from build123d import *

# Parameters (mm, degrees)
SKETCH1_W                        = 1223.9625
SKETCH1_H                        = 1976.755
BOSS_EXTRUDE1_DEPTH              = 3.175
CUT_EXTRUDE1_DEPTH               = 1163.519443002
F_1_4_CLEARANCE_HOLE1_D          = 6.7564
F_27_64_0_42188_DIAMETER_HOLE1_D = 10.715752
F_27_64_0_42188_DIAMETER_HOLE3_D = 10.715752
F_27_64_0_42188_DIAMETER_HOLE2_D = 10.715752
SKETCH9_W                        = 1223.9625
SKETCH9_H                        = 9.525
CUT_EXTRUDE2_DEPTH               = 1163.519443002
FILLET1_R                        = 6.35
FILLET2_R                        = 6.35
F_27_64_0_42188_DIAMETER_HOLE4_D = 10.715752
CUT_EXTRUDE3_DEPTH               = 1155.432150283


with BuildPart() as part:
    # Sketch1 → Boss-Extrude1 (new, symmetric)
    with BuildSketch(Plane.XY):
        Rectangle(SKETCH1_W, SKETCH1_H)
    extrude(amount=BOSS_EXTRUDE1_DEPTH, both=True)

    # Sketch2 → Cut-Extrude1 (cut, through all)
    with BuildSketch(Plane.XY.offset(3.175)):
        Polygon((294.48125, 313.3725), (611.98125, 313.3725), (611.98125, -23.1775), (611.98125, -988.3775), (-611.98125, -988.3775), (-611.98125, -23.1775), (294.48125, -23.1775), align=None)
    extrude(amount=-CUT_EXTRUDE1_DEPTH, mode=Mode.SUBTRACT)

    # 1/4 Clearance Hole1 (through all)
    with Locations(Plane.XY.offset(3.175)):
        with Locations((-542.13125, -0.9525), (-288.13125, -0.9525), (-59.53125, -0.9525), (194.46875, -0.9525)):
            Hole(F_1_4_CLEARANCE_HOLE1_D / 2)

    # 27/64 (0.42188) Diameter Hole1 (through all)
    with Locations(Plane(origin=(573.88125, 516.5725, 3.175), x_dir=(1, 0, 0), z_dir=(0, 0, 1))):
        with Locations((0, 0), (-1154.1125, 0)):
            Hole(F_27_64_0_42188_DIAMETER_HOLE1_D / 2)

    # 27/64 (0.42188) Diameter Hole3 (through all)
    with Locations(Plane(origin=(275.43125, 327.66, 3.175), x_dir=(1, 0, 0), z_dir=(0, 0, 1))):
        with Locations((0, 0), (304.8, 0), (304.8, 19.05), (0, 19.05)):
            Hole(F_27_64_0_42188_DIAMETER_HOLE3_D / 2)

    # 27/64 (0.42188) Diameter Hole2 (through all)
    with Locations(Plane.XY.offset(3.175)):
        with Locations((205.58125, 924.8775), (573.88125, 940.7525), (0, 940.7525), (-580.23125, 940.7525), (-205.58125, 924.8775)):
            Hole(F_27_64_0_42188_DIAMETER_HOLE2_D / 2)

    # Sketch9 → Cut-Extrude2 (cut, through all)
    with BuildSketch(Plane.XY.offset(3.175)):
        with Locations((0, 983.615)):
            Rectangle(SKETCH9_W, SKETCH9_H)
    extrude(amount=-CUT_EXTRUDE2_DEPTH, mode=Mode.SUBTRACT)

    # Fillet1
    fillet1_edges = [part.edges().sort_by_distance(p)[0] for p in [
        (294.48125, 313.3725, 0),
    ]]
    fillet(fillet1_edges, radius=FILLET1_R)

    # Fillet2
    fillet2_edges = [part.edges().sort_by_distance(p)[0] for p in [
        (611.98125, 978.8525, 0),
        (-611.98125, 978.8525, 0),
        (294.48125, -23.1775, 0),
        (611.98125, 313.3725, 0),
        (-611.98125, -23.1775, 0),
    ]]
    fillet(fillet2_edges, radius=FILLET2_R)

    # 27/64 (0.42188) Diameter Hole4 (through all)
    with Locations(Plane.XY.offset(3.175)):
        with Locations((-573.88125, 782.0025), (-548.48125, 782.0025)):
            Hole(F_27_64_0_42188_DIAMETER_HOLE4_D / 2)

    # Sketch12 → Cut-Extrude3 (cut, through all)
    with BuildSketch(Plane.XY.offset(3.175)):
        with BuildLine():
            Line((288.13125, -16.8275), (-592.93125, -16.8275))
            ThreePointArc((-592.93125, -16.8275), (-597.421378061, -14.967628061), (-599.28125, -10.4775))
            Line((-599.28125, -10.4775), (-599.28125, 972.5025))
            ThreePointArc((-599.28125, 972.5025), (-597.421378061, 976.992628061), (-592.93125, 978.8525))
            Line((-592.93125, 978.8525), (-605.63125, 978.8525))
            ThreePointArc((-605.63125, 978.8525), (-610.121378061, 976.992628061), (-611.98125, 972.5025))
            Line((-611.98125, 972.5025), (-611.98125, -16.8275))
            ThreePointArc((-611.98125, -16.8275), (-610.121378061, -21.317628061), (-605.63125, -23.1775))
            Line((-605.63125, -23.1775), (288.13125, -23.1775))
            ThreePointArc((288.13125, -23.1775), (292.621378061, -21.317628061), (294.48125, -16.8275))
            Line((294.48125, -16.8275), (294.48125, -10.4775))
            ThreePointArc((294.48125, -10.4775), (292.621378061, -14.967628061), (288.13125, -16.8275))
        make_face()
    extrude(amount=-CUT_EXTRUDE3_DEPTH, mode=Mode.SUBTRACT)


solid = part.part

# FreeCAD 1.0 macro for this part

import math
import FreeCAD as App
import Part
import Sketcher
from FreeCAD import Vector
Q = App.Units.Quantity


def edges_at(feature, points):
    """Names of the edges that pass closest to the given points."""
    edges = feature.Shape.Edges
    near = lambda p: min(range(len(edges)), key=lambda i: edges[i].distToShape(Part.Vertex(*p))[0])
    return sorted({f"Edge{near(p) + 1}" for p in points})

doc = App.newDocument("Part")
params = doc.addObject("Spreadsheet::Sheet", "Params")
for row, (alias, value) in enumerate([
    ("sketch1_width", "48.1875 in"),
    ("sketch1_height", "77.825 in"),
    ("pad1_length", "0.25 in"),
    ("sketch2_height", "38 in"),
    ("sketch2_width", "12.5 in"),
    ("sketch2_height2", "13.25 in"),
    ("sketch2_width2", "35.6875 in"),
    ("sketch3_diameter", "0.266 in"),
    ("hole_diameter", "0.266 in"),
    ("hole2_diameter", "10.715752 mm"),
    ("hole3_diameter", "10.715752 mm"),
    ("hole4_diameter", "10.715752 mm"),
    ("sketch7_width", "48.1875 in"),
    ("sketch7_height", "0.375 in"),
    ("fillet_radius", "0.25 in"),
    ("fillet2_radius", "0.25 in"),
    ("hole5_diameter", "10.715752 mm"),
    ("sketch9_radius", "0.25 in"),
    ("sketch9_width", "0.5 in"),
    ("sketch9_height", "38.7 in"),
    ("sketch9_width2", "34.6875 in"),
], start=1):
    params.set(f"A{row}", alias)
    params.set(f"B{row}", "=" + value)
    params.setAlias(f"B{row}", alias)

body = doc.addObject("PartDesign::Body", "Body")

# Sketch on XY plane
sketch1 = body.newObject("Sketcher::SketchObject", "Sketch")
sketch1.AttachmentSupport = (doc.getObject("XY_Plane"), [""])
sketch1.MapMode = "FlatFace"
sketch1.addGeometry([
    Part.LineSegment(Vector(-611.98125, 988.3775, 0), Vector(-611.98125, -988.3775, 0)),
    Part.LineSegment(Vector(-611.98125, -988.3775, 0), Vector(611.98125, -988.3775, 0)),
    Part.LineSegment(Vector(611.98125, -988.3775, 0), Vector(611.98125, 988.3775, 0)),
    Part.LineSegment(Vector(611.98125, 988.3775, 0), Vector(-611.98125, 988.3775, 0)),
], False)
sketch1.addConstraint([
    Sketcher.Constraint("Coincident", 0, 2, 1, 1),
    Sketcher.Constraint("Coincident", 1, 2, 2, 1),
    Sketcher.Constraint("Coincident", 2, 2, 3, 1),
    Sketcher.Constraint("Coincident", 3, 2, 0, 1),
    Sketcher.Constraint("Vertical", 0),
    Sketcher.Constraint("Horizontal", 1),
    Sketcher.Constraint("Vertical", 2),
    Sketcher.Constraint("Horizontal", 3),
    Sketcher.Constraint("Symmetric", 0, 2, 2, 2, -1, 1),
    Sketcher.Constraint("DistanceX", 1, 1, 1, 2, Q("48.1875 in")),
    Sketcher.Constraint("DistanceY", 0, 2, 0, 1, Q("77.825 in")),
])
sketch1.setExpression("Constraints[9]", "Params.sketch1_width")
sketch1.setExpression("Constraints[10]", "Params.sketch1_height")
pad1 = body.newObject("PartDesign::Pad", "Pad")
pad1.Profile = sketch1
pad1.setExpression("Length", "Params.pad1_length")
pad1.Midplane = True

# Sketch on XY plane
sketch2 = body.newObject("Sketcher::SketchObject", "Sketch001")
sketch2.AttachmentSupport = (doc.getObject("XY_Plane"), [""])
sketch2.MapMode = "FlatFace"
sketch2.AttachmentOffset = App.Placement(Vector(0, 0, 0.125 * 25.4), App.Rotation())
sketch2.addGeometry([
    Part.LineSegment(Vector(611.98125, 313.3725, 0), Vector(294.48125, 313.3725, 0)),  # 0
    Part.LineSegment(Vector(294.48125, 313.3725, 0), Vector(294.48125, -23.1775, 0)),  # 1
    Part.LineSegment(Vector(294.48125, -23.1775, 0), Vector(-611.98125, -23.1775, 0)),  # 2
    Part.LineSegment(Vector(-611.98125, -23.1775, 0), Vector(-611.98125, -988.3775, 0)),  # 3
    Part.LineSegment(Vector(-611.98125, -988.3775, 0), Vector(611.98125, -988.3775, 0)),  # 4
    Part.LineSegment(Vector(611.98125, -988.3775, 0), Vector(611.98125, 313.3725, 0)),  # 5
], False)
sketch2.addConstraint([
    Sketcher.Constraint("Coincident", 0, 2, 1, 1),
    Sketcher.Constraint("Coincident", 1, 2, 2, 1),
    Sketcher.Constraint("Coincident", 2, 2, 3, 1),
    Sketcher.Constraint("Coincident", 3, 2, 4, 1),
    Sketcher.Constraint("Coincident", 4, 2, 5, 1),
    Sketcher.Constraint("Coincident", 5, 2, 0, 1),
    Sketcher.Constraint("Horizontal", 0),
    Sketcher.Constraint("Vertical", 1),
    Sketcher.Constraint("Horizontal", 2),
    Sketcher.Constraint("Vertical", 3),
    Sketcher.Constraint("Horizontal", 4),
    Sketcher.Constraint("Vertical", 5),
    Sketcher.Constraint("DistanceY", 3, 2, 3, 1, Q("38 in")),
    Sketcher.Constraint("DistanceX", 0, 2, 0, 1, Q("12.5 in")),
    Sketcher.Constraint("DistanceY", 1, 2, 1, 1, Q("13.25 in")),
    Sketcher.Constraint("DistanceX", 2, 2, 2, 1, Q("35.6875 in")),
    Sketcher.Constraint("DistanceX", -1, 1, 0, 2, Q("11.59375 in")),
    Sketcher.Constraint("DistanceY", -1, 1, 0, 2, Q("12.3375 in")),
])
sketch2.setExpression("Constraints[12]", "Params.sketch2_height")
sketch2.setExpression("Constraints[13]", "Params.sketch2_width")
sketch2.setExpression("Constraints[14]", "Params.sketch2_height2")
sketch2.setExpression("Constraints[15]", "Params.sketch2_width2")
pocket1 = body.newObject("PartDesign::Pocket", "Pocket")
pocket1.Profile = sketch2
pocket1.Type = "ThroughAll"

# Sketch on XY plane
sketch3 = body.newObject("Sketcher::SketchObject", "Sketch002")
sketch3.AttachmentSupport = (doc.getObject("XY_Plane"), [""])
sketch3.MapMode = "FlatFace"
sketch3.AttachmentOffset = App.Placement(Vector(0, 0, 0.125 * 25.4), App.Rotation())
sketch3.addGeometry([
    Part.Circle(Vector(-542.13125, -0.9525, 0), Vector(0, 0, 1), 3.3782),
    Part.Circle(Vector(-288.13125, -0.9525, 0), Vector(0, 0, 1), 3.3782),
    Part.Circle(Vector(-59.53125, -0.9525, 0), Vector(0, 0, 1), 3.3782),
    Part.Circle(Vector(194.46875, -0.9525, 0), Vector(0, 0, 1), 3.3782),
], False)
sketch3.addConstraint([
    Sketcher.Constraint("Equal", 0, 1),
    Sketcher.Constraint("Equal", 1, 2),
    Sketcher.Constraint("Equal", 2, 3),
    Sketcher.Constraint("Horizontal", 0, 3, 1, 3),
    Sketcher.Constraint("Horizontal", 1, 3, 2, 3),
    Sketcher.Constraint("Horizontal", 2, 3, 3, 3),
    Sketcher.Constraint("Diameter", 0, Q("0.266 in")),
    Sketcher.Constraint("DistanceX", 0, 3, 1, 3, Q("10 in")),
    Sketcher.Constraint("DistanceX", 1, 3, 2, 3, Q("9 in")),
    Sketcher.Constraint("DistanceX", 2, 3, 3, 3, Q("10 in")),
    Sketcher.Constraint("DistanceX", 0, 3, -1, 1, Q("21.34375 in")),
    Sketcher.Constraint("DistanceY", 0, 3, -1, 1, Q("0.0375 in")),
])
sketch3.setExpression("Constraints[6]", "Params.sketch3_diameter")
doc.recompute()
hole = body.newObject("PartDesign::Hole", "Hole")
hole.Profile = sketch3
hole.ThreadType = "None"
hole.setExpression("Diameter", "Params.hole_diameter")
hole.DepthType = "ThroughAll"

# Sketch on XY plane
sketch4 = body.newObject("Sketcher::SketchObject", "Sketch003")
sketch4.AttachmentSupport = (doc.getObject("XY_Plane"), [""])
sketch4.MapMode = "FlatFace"
sketch4.AttachmentOffset = App.Placement(Vector(0, 0, 0.125 * 25.4), App.Rotation())
sketch4.addGeometry([
    Part.Circle(Vector(573.88125, 516.5725, 0), Vector(0, 0, 1), 5.357876),
    Part.Circle(Vector(-580.23125, 516.5725, 0), Vector(0, 0, 1), 5.357876),
], False)
sketch4.addConstraint([
    Sketcher.Constraint("Equal", 0, 1),
    Sketcher.Constraint("Horizontal", 0, 3, 1, 3),
    Sketcher.Constraint("DistanceX", -1, 1, 0, 3, Q("22.59375 in")),
    Sketcher.Constraint("DistanceX", 1, 3, -1, 1, Q("22.84375 in")),
    Sketcher.Constraint("Diameter", 0, 10.715752),
    Sketcher.Constraint("DistanceY", -1, 1, 0, 3, Q("20.3375 in")),
])
doc.recompute()
hole2 = body.newObject("PartDesign::Hole", "Hole001")
hole2.Profile = sketch4
hole2.ThreadType = "None"
hole2.setExpression("Diameter", "Params.hole2_diameter")
hole2.DepthType = "ThroughAll"

# Sketch on XY plane
sketch5 = body.newObject("Sketcher::SketchObject", "Sketch004")
sketch5.AttachmentSupport = (doc.getObject("XY_Plane"), [""])
sketch5.MapMode = "FlatFace"
sketch5.AttachmentOffset = App.Placement(Vector(0, 0, 0.125 * 25.4), App.Rotation())
sketch5.addGeometry([
    Part.Circle(Vector(275.43125, 327.66, 0), Vector(0, 0, 1), 5.357876),
    Part.Circle(Vector(580.23125, 327.66, 0), Vector(0, 0, 1), 5.357876),
    Part.Circle(Vector(580.23125, 346.71, 0), Vector(0, 0, 1), 5.357876),
    Part.Circle(Vector(275.43125, 346.71, 0), Vector(0, 0, 1), 5.357876),
], False)
sketch5.addConstraint([
    Sketcher.Constraint("Equal", 0, 1),
    Sketcher.Constraint("Equal", 1, 2),
    Sketcher.Constraint("Equal", 2, 3),
    Sketcher.Constraint("Horizontal", 0, 3, 1, 3),
    Sketcher.Constraint("Horizontal", 2, 3, 3, 3),
    Sketcher.Constraint("Vertical", 1, 3, 2, 3),
    Sketcher.Constraint("Vertical", 0, 3, 3, 3),
    Sketcher.Constraint("DistanceX", 0, 3, 1, 3, Q("12 in")),
    Sketcher.Constraint("DistanceY", -1, 1, 0, 3, Q("12.9 in")),
    Sketcher.Constraint("DistanceY", -1, 1, 2, 3, Q("13.65 in")),
    Sketcher.Constraint("DistanceX", -1, 1, 0, 3, Q("10.84375 in")),
    Sketcher.Constraint("Diameter", 0, 10.715752),
])
doc.recompute()
hole3 = body.newObject("PartDesign::Hole", "Hole002")
hole3.Profile = sketch5
hole3.ThreadType = "None"
hole3.setExpression("Diameter", "Params.hole3_diameter")
hole3.DepthType = "ThroughAll"

# Sketch on XY plane
sketch6 = body.newObject("Sketcher::SketchObject", "Sketch005")
sketch6.AttachmentSupport = (doc.getObject("XY_Plane"), [""])
sketch6.MapMode = "FlatFace"
sketch6.AttachmentOffset = App.Placement(Vector(0, 0, 0.125 * 25.4), App.Rotation())
sketch6.addGeometry([
    Part.Circle(Vector(205.58125, 924.8775, 0), Vector(0, 0, 1), 5.357876),  # 0
    Part.Circle(Vector(573.88125, 940.7525, 0), Vector(0, 0, 1), 5.357876),  # 1
    Part.Circle(Vector(0, 940.7525, 0), Vector(0, 0, 1), 5.357876),  # 2
    Part.Circle(Vector(-580.23125, 940.7525, 0), Vector(0, 0, 1), 5.357876),  # 3
    Part.Circle(Vector(-205.58125, 924.8775, 0), Vector(0, 0, 1), 5.357876),  # 4
], False)
sketch6.addConstraint([
    Sketcher.Constraint("Equal", 0, 1),
    Sketcher.Constraint("Equal", 1, 2),
    Sketcher.Constraint("Equal", 2, 3),
    Sketcher.Constraint("Equal", 3, 4),
    Sketcher.Constraint("Symmetric", 0, 3, 4, 3, -2),
    Sketcher.Constraint("PointOnObject", 2, 3, -2),
    Sketcher.Constraint("Horizontal", 1, 3, 2, 3),
    Sketcher.Constraint("Horizontal", 2, 3, 3, 3),
    Sketcher.Constraint("DistanceX", 0, 3, 1, 3, Q("14.5 in")),
    Sketcher.Constraint("DistanceX", 3, 3, 4, 3, Q("14.75 in")),
    Sketcher.Constraint("DistanceX", -1, 1, 0, 3, Q("8.09375 in")),
    Sketcher.Constraint("DistanceY", 0, 3, 1, 3, Q("0.625 in")),
    Sketcher.Constraint("Diameter", 0, 10.715752),
    Sketcher.Constraint("DistanceY", -1, 1, 0, 3, Q("36.4125 in")),
])
doc.recompute()
hole4 = body.newObject("PartDesign::Hole", "Hole003")
hole4.Profile = sketch6
hole4.ThreadType = "None"
hole4.setExpression("Diameter", "Params.hole4_diameter")
hole4.DepthType = "ThroughAll"

# Sketch on XY plane
sketch7 = body.newObject("Sketcher::SketchObject", "Sketch006")
sketch7.AttachmentSupport = (doc.getObject("XY_Plane"), [""])
sketch7.MapMode = "FlatFace"
sketch7.AttachmentOffset = App.Placement(Vector(0, 0, 0.125 * 25.4), App.Rotation())
sketch7.addGeometry([
    Part.LineSegment(Vector(-611.98125, 988.3775, 0), Vector(-611.98125, 978.8525, 0)),
    Part.LineSegment(Vector(-611.98125, 978.8525, 0), Vector(611.98125, 978.8525, 0)),
    Part.LineSegment(Vector(611.98125, 978.8525, 0), Vector(611.98125, 988.3775, 0)),
    Part.LineSegment(Vector(611.98125, 988.3775, 0), Vector(-611.98125, 988.3775, 0)),
], False)
sketch7.addConstraint([
    Sketcher.Constraint("Coincident", 0, 2, 1, 1),
    Sketcher.Constraint("Coincident", 1, 2, 2, 1),
    Sketcher.Constraint("Coincident", 2, 2, 3, 1),
    Sketcher.Constraint("Coincident", 3, 2, 0, 1),
    Sketcher.Constraint("Vertical", 0),
    Sketcher.Constraint("Horizontal", 1),
    Sketcher.Constraint("Vertical", 2),
    Sketcher.Constraint("Horizontal", 3),
    Sketcher.Constraint("DistanceX", 1, 1, 1, 2, Q("48.1875 in")),
    Sketcher.Constraint("DistanceY", 0, 2, 0, 1, Q("0.375 in")),
    Sketcher.Constraint("DistanceX", 0, 2, -1, 1, Q("24.09375 in")),
    Sketcher.Constraint("DistanceY", -1, 1, 0, 2, Q("38.5375 in")),
])
sketch7.setExpression("Constraints[8]", "Params.sketch7_width")
sketch7.setExpression("Constraints[9]", "Params.sketch7_height")
pocket2 = body.newObject("PartDesign::Pocket", "Pocket001")
pocket2.Profile = sketch7
pocket2.Type = "ThroughAll"
doc.recompute()

fillet = body.newObject("PartDesign::Fillet", "Fillet")
fillet.Base = (pocket2, edges_at(pocket2, [(294.481, 313.373, 0)]))
fillet.setExpression("Radius", "Params.fillet_radius")
doc.recompute()

fillet2 = body.newObject("PartDesign::Fillet", "Fillet001")
fillet2.Base = (fillet, edges_at(fillet, [
    (611.981, 978.852, 0),
    (-611.981, 978.852, 0),
    (294.481, -23.177, 0),
    (611.981, 313.373, 0),
    (-611.981, -23.177, 0),
]))
fillet2.setExpression("Radius", "Params.fillet2_radius")

# Sketch on XY plane
sketch8 = body.newObject("Sketcher::SketchObject", "Sketch007")
sketch8.AttachmentSupport = (doc.getObject("XY_Plane"), [""])
sketch8.MapMode = "FlatFace"
sketch8.AttachmentOffset = App.Placement(Vector(0, 0, 0.125 * 25.4), App.Rotation())
sketch8.addGeometry([
    Part.Circle(Vector(-573.88125, 782.0025, 0), Vector(0, 0, 1), 5.357876),
    Part.Circle(Vector(-548.48125, 782.0025, 0), Vector(0, 0, 1), 5.357876),
], False)
sketch8.addConstraint([
    Sketcher.Constraint("Equal", 0, 1),
    Sketcher.Constraint("Horizontal", 0, 3, 1, 3),
    Sketcher.Constraint("DistanceX", 0, 3, 1, 3, Q("1 in")),
    Sketcher.Constraint("DistanceX", 0, 3, -1, 1, Q("22.59375 in")),
    Sketcher.Constraint("Diameter", 0, 10.715752),
    Sketcher.Constraint("DistanceY", -1, 1, 0, 3, Q("30.7875 in")),
])
doc.recompute()
hole5 = body.newObject("PartDesign::Hole", "Hole004")
hole5.Profile = sketch8
hole5.ThreadType = "None"
hole5.setExpression("Diameter", "Params.hole5_diameter")
hole5.DepthType = "ThroughAll"

# Sketch on XY plane
sketch9 = body.newObject("Sketcher::SketchObject", "Sketch008")
sketch9.AttachmentSupport = (doc.getObject("XY_Plane"), [""])
sketch9.MapMode = "FlatFace"
sketch9.AttachmentOffset = App.Placement(Vector(0, 0, 0.125 * 25.4), App.Rotation())
sketch9.addGeometry([
    Part.LineSegment(Vector(288.13125, -16.8275, 0), Vector(-592.93125, -16.8275, 0)),  # 0
    Part.ArcOfCircle(Part.Circle(Vector(-592.93125, -10.4775, 0), Vector(0, 0, 1), 6.35), math.radians(180), math.radians(270)),  # 1
    Part.LineSegment(Vector(-599.28125, -10.4775, 0), Vector(-599.28125, 972.5025, 0)),  # 2
    Part.ArcOfCircle(Part.Circle(Vector(-592.93125, 972.5025, 0), Vector(0, 0, 1), 6.35), math.radians(90), math.radians(180)),  # 3
    Part.LineSegment(Vector(-592.93125, 978.8525, 0), Vector(-605.63125, 978.8525, 0)),  # 4
    Part.ArcOfCircle(Part.Circle(Vector(-605.63125, 972.5025, 0), Vector(0, 0, 1), 6.35), math.radians(90), math.radians(180)),  # 5
    Part.LineSegment(Vector(-611.98125, 972.5025, 0), Vector(-611.98125, -16.8275, 0)),  # 6
    Part.ArcOfCircle(Part.Circle(Vector(-605.63125, -16.8275, 0), Vector(0, 0, 1), 6.35), math.radians(180), math.radians(270)),  # 7
    Part.LineSegment(Vector(-605.63125, -23.1775, 0), Vector(288.13125, -23.1775, 0)),  # 8
    Part.ArcOfCircle(Part.Circle(Vector(288.13125, -16.8275, 0), Vector(0, 0, 1), 6.35), math.radians(-90), math.radians(0)),  # 9
    Part.LineSegment(Vector(294.48125, -16.8275, 0), Vector(294.48125, -10.4775, 0)),  # 10
    Part.ArcOfCircle(Part.Circle(Vector(288.13125, -10.4775, 0), Vector(0, 0, 1), 6.35), math.radians(-90), math.radians(0)),  # 11
], False)
sketch9.addConstraint([
    Sketcher.Constraint("Tangent", 0, 2, 1, 2),
    Sketcher.Constraint("Tangent", 1, 1, 2, 1),
    Sketcher.Constraint("Tangent", 2, 2, 3, 2),
    Sketcher.Constraint("Tangent", 3, 1, 4, 1),
    Sketcher.Constraint("Tangent", 4, 2, 5, 1),
    Sketcher.Constraint("Tangent", 5, 2, 6, 1),
    Sketcher.Constraint("Tangent", 6, 2, 7, 1),
    Sketcher.Constraint("Tangent", 7, 2, 8, 1),
    Sketcher.Constraint("Tangent", 8, 2, 9, 1),
    Sketcher.Constraint("Tangent", 9, 2, 10, 1),
    Sketcher.Constraint("Tangent", 10, 2, 11, 2),
    Sketcher.Constraint("Tangent", 11, 1, 0, 1),
    Sketcher.Constraint("Horizontal", 0),
    Sketcher.Constraint("Vertical", 2),
    Sketcher.Constraint("Horizontal", 4),
    Sketcher.Constraint("Vertical", 6),
    Sketcher.Constraint("Horizontal", 8),
    Sketcher.Constraint("Vertical", 10),
    Sketcher.Constraint("Coincident", 11, 1, 9, 3),
    Sketcher.Constraint("Equal", 1, 3),
    Sketcher.Constraint("Equal", 3, 5),
    Sketcher.Constraint("Equal", 5, 7),
    Sketcher.Constraint("Equal", 7, 9),
    Sketcher.Constraint("Radius", 1, Q("0.25 in")),
    Sketcher.Constraint("DistanceX", 4, 2, 4, 1, Q("0.5 in")),
    Sketcher.Constraint("DistanceY", 2, 1, 2, 2, Q("38.7 in")),
    Sketcher.Constraint("DistanceX", 0, 2, 0, 1, Q("34.6875 in")),
    Sketcher.Constraint("DistanceX", 1, 3, -1, 1, Q("23.34375 in")),
    Sketcher.Constraint("DistanceY", 1, 3, -1, 1, Q("0.4125 in")),
])
sketch9.setExpression("Constraints[23]", "Params.sketch9_radius")
sketch9.setExpression("Constraints[24]", "Params.sketch9_width")
sketch9.setExpression("Constraints[25]", "Params.sketch9_height")
sketch9.setExpression("Constraints[26]", "Params.sketch9_width2")
pocket3 = body.newObject("PartDesign::Pocket", "Pocket002")
pocket3.Profile = sketch9
pocket3.Type = "ThroughAll"

doc.recompute()
